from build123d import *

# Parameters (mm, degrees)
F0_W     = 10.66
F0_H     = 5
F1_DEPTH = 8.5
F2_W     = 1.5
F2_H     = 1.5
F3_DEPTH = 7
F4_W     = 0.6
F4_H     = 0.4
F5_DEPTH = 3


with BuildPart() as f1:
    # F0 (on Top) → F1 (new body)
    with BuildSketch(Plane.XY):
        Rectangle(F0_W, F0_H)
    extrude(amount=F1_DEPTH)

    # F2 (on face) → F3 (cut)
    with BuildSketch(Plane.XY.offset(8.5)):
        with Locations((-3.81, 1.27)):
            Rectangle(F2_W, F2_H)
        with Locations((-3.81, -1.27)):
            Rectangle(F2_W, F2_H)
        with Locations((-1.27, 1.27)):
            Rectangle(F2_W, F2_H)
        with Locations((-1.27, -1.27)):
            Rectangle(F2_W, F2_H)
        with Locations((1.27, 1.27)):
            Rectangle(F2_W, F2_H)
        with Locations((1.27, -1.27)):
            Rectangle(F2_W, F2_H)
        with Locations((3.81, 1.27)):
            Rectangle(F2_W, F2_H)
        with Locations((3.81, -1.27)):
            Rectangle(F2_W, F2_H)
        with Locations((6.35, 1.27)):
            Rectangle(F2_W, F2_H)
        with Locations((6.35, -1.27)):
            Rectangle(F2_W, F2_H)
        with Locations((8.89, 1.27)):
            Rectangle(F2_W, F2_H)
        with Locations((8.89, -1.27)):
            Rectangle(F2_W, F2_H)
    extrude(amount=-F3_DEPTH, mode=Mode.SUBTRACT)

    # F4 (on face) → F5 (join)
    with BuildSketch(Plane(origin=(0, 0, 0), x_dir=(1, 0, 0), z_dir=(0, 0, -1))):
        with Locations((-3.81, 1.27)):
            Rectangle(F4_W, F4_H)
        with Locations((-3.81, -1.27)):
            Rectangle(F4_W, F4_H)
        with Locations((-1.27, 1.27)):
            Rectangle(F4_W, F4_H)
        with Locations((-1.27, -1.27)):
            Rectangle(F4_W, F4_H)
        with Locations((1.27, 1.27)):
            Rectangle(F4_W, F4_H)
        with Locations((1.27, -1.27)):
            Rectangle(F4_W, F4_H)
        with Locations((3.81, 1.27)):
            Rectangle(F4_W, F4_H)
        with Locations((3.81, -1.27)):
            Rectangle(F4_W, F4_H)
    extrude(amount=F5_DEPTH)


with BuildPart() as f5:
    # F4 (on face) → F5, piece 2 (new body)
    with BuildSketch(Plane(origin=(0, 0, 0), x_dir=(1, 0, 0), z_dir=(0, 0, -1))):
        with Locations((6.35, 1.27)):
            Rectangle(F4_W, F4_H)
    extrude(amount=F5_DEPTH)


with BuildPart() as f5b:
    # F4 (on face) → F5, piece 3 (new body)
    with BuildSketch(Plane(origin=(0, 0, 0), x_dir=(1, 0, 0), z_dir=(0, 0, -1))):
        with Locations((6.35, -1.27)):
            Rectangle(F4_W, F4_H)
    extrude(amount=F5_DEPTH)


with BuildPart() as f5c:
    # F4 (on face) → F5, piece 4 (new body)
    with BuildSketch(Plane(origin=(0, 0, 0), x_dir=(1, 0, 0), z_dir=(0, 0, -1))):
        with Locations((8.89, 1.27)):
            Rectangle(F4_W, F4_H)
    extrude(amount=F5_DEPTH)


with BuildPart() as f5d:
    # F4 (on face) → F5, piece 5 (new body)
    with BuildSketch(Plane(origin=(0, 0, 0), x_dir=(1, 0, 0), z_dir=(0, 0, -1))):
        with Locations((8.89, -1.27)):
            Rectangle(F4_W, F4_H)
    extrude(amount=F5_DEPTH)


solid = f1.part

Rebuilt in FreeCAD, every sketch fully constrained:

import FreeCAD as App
import Part
import Sketcher
from FreeCAD import Vector
Q = App.Units.Quantity


def add_polygon(sketch, points):
    """Adds a closed chain of lines whose ends are joined by coincident constraints."""
    first, n = sketch.GeometryCount, len(points)
    for a, b in zip(points, points[1:] + points[:1]):
        sketch.addGeometry(Part.LineSegment(App.Vector(*a, 0), App.Vector(*b, 0)), False)
    for i in range(n):
        sketch.addConstraint(Sketcher.Constraint("Coincident", first + i, 2, first + (i + 1) % n, 1))

doc = App.newDocument("Part")
body = doc.addObject("PartDesign::Body", "Body")

# Sketch on XY plane
sketch1 = body.newObject("Sketcher::SketchObject", "Sketch")
sketch1.AttachmentSupport = (doc.getObject("XY_Plane"), [""])
sketch1.MapMode = "FlatFace"
add_polygon(sketch1, [(-5, 2), (-5, -2), (5, -2), (5, 2)])  # lines 0-3
sketch1.addConstraint([
    Sketcher.Constraint("Vertical", 0),
    Sketcher.Constraint("Horizontal", 1),
    Sketcher.Constraint("Vertical", 2),
    Sketcher.Constraint("Horizontal", 3),
    Sketcher.Constraint("Symmetric", 0, 2, 2, 2, -1, 1),
    Sketcher.Constraint("DistanceY", 0, 2, 0, 1, Q("5 mm")),
    Sketcher.Constraint("DistanceX", 1, 1, 1, 2, Q("10.66 mm")),
])
pad1 = body.newObject("PartDesign::Pad", "Pad")
pad1.Profile = sketch1
pad1.Length = 8.5

# Sketch on XY plane
sketch2 = body.newObject("Sketcher::SketchObject", "Sketch001")
sketch2.AttachmentSupport = (doc.getObject("XY_Plane"), [""])
sketch2.MapMode = "FlatFace"
sketch2.AttachmentOffset = App.Placement(Vector(0, 0, 8.5), App.Rotation())
add_polygon(sketch2, [(-4.6, 2), (-4.6, 0.5), (-3.1, 0.5), (-3.1, 2)])  # lines 0-3
add_polygon(sketch2, [(-4.6, -0.5), (-4.6, -2), (-3.1, -2), (-3.1, -0.5)])  # lines 4-7
add_polygon(sketch2, [(-2, 2), (-2, 0.5), (-0.5, 0.5), (-0.5, 2)])  # lines 8-11
add_polygon(sketch2, [(-2, -0.5), (-2, -2), (-0.5, -2), (-0.5, -0.5)])  # lines 12-15
add_polygon(sketch2, [(0.5, 2), (0.5, 0.5), (2, 0.5), (2, 2)])  # lines 16-19
add_polygon(sketch2, [(0.5, -0.5), (0.5, -2), (2, -2), (2, -0.5)])  # lines 20-23
add_polygon(sketch2, [(3.1, 2), (3.1, 0.5), (4.6, 0.5), (4.6, 2)])  # lines 24-27
add_polygon(sketch2, [(3.1, -0.5), (3.1, -2), (4.6, -2), (4.6, -0.5)])  # lines 28-31
add_polygon(sketch2, [(5.6, 2), (5.6, 0.5), (7.1, 0.5), (7.1, 2)])  # lines 32-35
add_polygon(sketch2, [(5.6, -0.5), (5.6, -2), (7.1, -2), (7.1, -0.5)])  # lines 36-39
add_polygon(sketch2, [(8.1, 2), (8.1, 0.5), (9.6, 0.5), (9.6, 2)])  # lines 40-43
add_polygon(sketch2, [(8.1, -0.5), (8.1, -2), (9.6, -2), (9.6, -0.5)])  # lines 44-47
sketch2.addConstraint([
    Sketcher.Constraint("Vertical", 0),
    Sketcher.Constraint("Horizontal", 1),
    Sketcher.Constraint("Vertical", 2),
    Sketcher.Constraint("Horizontal", 3),
    Sketcher.Constraint("Vertical", 4),
    Sketcher.Constraint("Horizontal", 5),
    Sketcher.Constraint("Vertical", 6),
    Sketcher.Constraint("Horizontal", 7),
    Sketcher.Constraint("Vertical", 8),
    Sketcher.Constraint("Horizontal", 9),
    Sketcher.Constraint("Vertical", 10),
    Sketcher.Constraint("Horizontal", 11),
    Sketcher.Constraint("Vertical", 12),
    Sketcher.Constraint("Horizontal", 13),
    Sketcher.Constraint("Vertical", 14),
    Sketcher.Constraint("Horizontal", 15),
    Sketcher.Constraint("Vertical", 16),
    Sketcher.Constraint("Horizontal", 17),
    Sketcher.Constraint("Vertical", 18),
    Sketcher.Constraint("Horizontal", 19),
    Sketcher.Constraint("Vertical", 20),
    Sketcher.Constraint("Horizontal", 21),
    Sketcher.Constraint("Vertical", 22),
    Sketcher.Constraint("Horizontal", 23),
    Sketcher.Constraint("Vertical", 24),
    Sketcher.Constraint("Horizontal", 25),
    Sketcher.Constraint("Vertical", 26),
    Sketcher.Constraint("Horizontal", 27),
    Sketcher.Constraint("Vertical", 28),
    Sketcher.Constraint("Horizontal", 29),
    Sketcher.Constraint("Vertical", 30),
    Sketcher.Constraint("Horizontal", 31),
    Sketcher.Constraint("Vertical", 32),
    Sketcher.Constraint("Horizontal", 33),
    Sketcher.Constraint("Vertical", 34),
    Sketcher.Constraint("Horizontal", 35),
    Sketcher.Constraint("Vertical", 36),
    Sketcher.Constraint("Horizontal", 37),
    Sketcher.Constraint("Vertical", 38),
    Sketcher.Constraint("Horizontal", 39),
    Sketcher.Constraint("Vertical", 40),
    Sketcher.Constraint("Horizontal", 41),
    Sketcher.Constraint("Vertical", 42),
    Sketcher.Constraint("Horizontal", 43),
    Sketcher.Constraint("Vertical", 44),
    Sketcher.Constraint("Horizontal", 45),
    Sketcher.Constraint("Vertical", 46),
    Sketcher.Constraint("Horizontal", 47),
    Sketcher.Constraint("Symmetric", 14, 2, 16, 2, -1, 1),
    Sketcher.Constraint("Symmetric", 12, 2, 18, 2, -1, 1),
    Sketcher.Constraint("Symmetric", 10, 2, 20, 2, -1, 1),
    Sketcher.Constraint("Symmetric", 8, 2, 22, 2, -1, 1),
    Sketcher.Constraint("Symmetric", 6, 2, 24, 2, -1, 1),
    Sketcher.Constraint("Symmetric", 4, 2, 26, 2, -1, 1),
    Sketcher.Constraint("Symmetric", 2, 2, 28, 2, -1, 1),
    Sketcher.Constraint("Symmetric", 0, 2, 30, 2, -1, 1),
    Sketcher.Constraint("Symmetric", 9, 2, 16, 2, -2),
    Sketcher.Constraint("Symmetric", 11, 2, 18, 2, -2),
    Sketcher.Constraint("Symmetric", 1, 2, 24, 2, -2),
    Sketcher.Constraint("Symmetric", 3, 2, 26, 2, -2),
    Sketcher.Constraint("Symmetric", 35, 2, 36, 2, -1),
    Sketcher.Constraint("Symmetric", 33, 2, 38, 2, -1),
    Sketcher.Constraint("Symmetric", 43, 2, 44, 2, -1),
    Sketcher.Constraint("Symmetric", 41, 2, 46, 2, -1),
    Sketcher.Constraint("Horizontal", 1, 2, 8, 2),
    Sketcher.Constraint("Horizontal", 3, 2, 10, 2),
    Sketcher.Constraint("Horizontal", 25, 2, 32, 2),
    Sketcher.Constraint("Horizontal", 27, 2, 34, 2),
    Sketcher.Constraint("Horizontal", 33, 2, 40, 2),
    Sketcher.Constraint("Horizontal", 35, 2, 42, 2),
    Sketcher.Constraint("Equal", 7, 9),
    Sketcher.Constraint("Equal", 31, 33),
    Sketcher.Constraint("Equal", 39, 41),
    Sketcher.Constraint("Equal", 47, 0),
    Sketcher.Constraint("DistanceX", 1, 1, 1, 2, Q("1.5 mm")),
    Sketcher.Constraint("DistanceX", -1, 1, 32, 2, Q("5.6 mm")),
    Sketcher.Constraint("DistanceX", 0, 2, -1, 1, Q("4.56 mm")),
    Sketcher.Constraint("DistanceY", -1, 1, 0, 2, Q("0.52 mm")),
    Sketcher.Constraint("DistanceX", 8, 2, -1, 1, Q("2.02 mm")),
    Sketcher.Constraint("DistanceX", -1, 1, 40, 2, Q("8.14 mm")),
])
pocket1 = body.newObject("PartDesign::Pocket", "Pocket")
pocket1.Profile = sketch2
pocket1.Length = 7

# Sketch on XY plane
sketch3 = body.newObject("Sketcher::SketchObject", "Sketch002")
sketch3.AttachmentSupport = (doc.getObject("XY_Plane"), [""])
sketch3.MapMode = "FlatFace"
add_polygon(sketch3, [(-4.11, -1.47), (-4.11, -1.07), (-3.51, -1.07), (-3.51, -1.47)])  # lines 0-3
add_polygon(sketch3, [(-4.11, 1.07), (-4.11, 1.47), (-3.51, 1.47), (-3.51, 1.07)])  # lines 4-7
add_polygon(sketch3, [(-1.57, -1.47), (-1.57, -1.07), (-0.97, -1.07), (-0.97, -1.47)])  # lines 8-11
add_polygon(sketch3, [(-1.57, 1.07), (-1.57, 1.47), (-0.97, 1.47), (-0.97, 1.07)])  # lines 12-15
add_polygon(sketch3, [(0.97, -1.47), (0.97, -1.07), (1.57, -1.07), (1.57, -1.47)])  # lines 16-19
add_polygon(sketch3, [(0.97, 1.07), (0.97, 1.47), (1.57, 1.47), (1.57, 1.07)])  # lines 20-23
add_polygon(sketch3, [(3.51, -1.47), (3.51, -1.07), (4.11, -1.07), (4.11, -1.47)])  # lines 24-27
add_polygon(sketch3, [(3.51, 1.07), (3.51, 1.47), (4.11, 1.47), (4.11, 1.07)])  # lines 28-31
sketch3.addConstraint([
    Sketcher.Constraint("Vertical", 0),
    Sketcher.Constraint("Horizontal", 1),
    Sketcher.Constraint("Vertical", 2),
    Sketcher.Constraint("Horizontal", 3),
    Sketcher.Constraint("Vertical", 4),
    Sketcher.Constraint("Horizontal", 5),
    Sketcher.Constraint("Vertical", 6),
    Sketcher.Constraint("Horizontal", 7),
    Sketcher.Constraint("Vertical", 8),
    Sketcher.Constraint("Horizontal", 9),
    Sketcher.Constraint("Vertical", 10),
    Sketcher.Constraint("Horizontal", 11),
    Sketcher.Constraint("Vertical", 12),
    Sketcher.Constraint("Horizontal", 13),
    Sketcher.Constraint("Vertical", 14),
    Sketcher.Constraint("Horizontal", 15),
    Sketcher.Constraint("Vertical", 16),
    Sketcher.Constraint("Horizontal", 17),
    Sketcher.Constraint("Vertical", 18),
    Sketcher.Constraint("Horizontal", 19),
    Sketcher.Constraint("Vertical", 20),
    Sketcher.Constraint("Horizontal", 21),
    Sketcher.Constraint("Vertical", 22),
    Sketcher.Constraint("Horizontal", 23),
    Sketcher.Constraint("Vertical", 24),
    Sketcher.Constraint("Horizontal", 25),
    Sketcher.Constraint("Vertical", 26),
    Sketcher.Constraint("Horizontal", 27),
    Sketcher.Constraint("Vertical", 28),
    Sketcher.Constraint("Horizontal", 29),
    Sketcher.Constraint("Vertical", 30),
    Sketcher.Constraint("Horizontal", 31),
    Sketcher.Constraint("Symmetric", 14, 2, 16, 2, -1, 1),
    Sketcher.Constraint("Symmetric", 12, 2, 18, 2, -1, 1),
    Sketcher.Constraint("Symmetric", 10, 2, 20, 2, -1, 1),
    Sketcher.Constraint("Symmetric", 8, 2, 22, 2, -1, 1),
    Sketcher.Constraint("Symmetric", 6, 2, 24, 2, -1, 1),
    Sketcher.Constraint("Symmetric", 4, 2, 26, 2, -1, 1),
    Sketcher.Constraint("Symmetric", 2, 2, 28, 2, -1, 1),
    Sketcher.Constraint("Symmetric", 0, 2, 30, 2, -1, 1),
    Sketcher.Constraint("Symmetric", 9, 2, 16, 2, -2),
    Sketcher.Constraint("Symmetric", 11, 2, 18, 2, -2),
    Sketcher.Constraint("Symmetric", 1, 2, 24, 2, -2),
    Sketcher.Constraint("Symmetric", 3, 2, 26, 2, -2),
    Sketcher.Constraint("Horizontal", 1, 2, 8, 2),
    Sketcher.Constraint("Horizontal", 3, 2, 10, 2),
    Sketcher.Constraint("Equal", 7, 9),
    Sketcher.Constraint("DistanceX", 1, 1, 1, 2, Q("0.6 mm")),
    Sketcher.Constraint("DistanceY", 0, 1, 0, 2, Q("0.4 mm")),
    Sketcher.Constraint("DistanceX", 0, 2, -1, 1, Q("4.11 mm")),
    Sketcher.Constraint("DistanceY", 0, 2, -1, 1, Q("1.07 mm")),
    Sketcher.Constraint("DistanceX", 8, 2, -1, 1, Q("1.57 mm")),
])
pad2 = body.newObject("PartDesign::Pad", "Pad001")
pad2.Profile = sketch3
pad2.Length = 3
pad2.Reversed = True
body2 = doc.addObject("PartDesign::Body", "Body001")

# Sketch on XY plane
sketch4 = body2.newObject("Sketcher::SketchObject", "Sketch003")
sketch4.AttachmentSupport = (doc.getObject("XY_Plane001"), [""])
sketch4.MapMode = "FlatFace"
add_polygon(sketch4, [(6.05, -1.47), (6.05, -1.07), (6.65, -1.07), (6.65, -1.47)])  # lines 0-3
sketch4.addConstraint([
    Sketcher.Constraint("Vertical", 0),
    Sketcher.Constraint("Horizontal", 1),
    Sketcher.Constraint("Vertical", 2),
    Sketcher.Constraint("Horizontal", 3),
    Sketcher.Constraint("DistanceX", 1, 1, 1, 2, Q("0.6 mm")),
    Sketcher.Constraint("DistanceY", 0, 1, 0, 2, Q("0.4 mm")),
    Sketcher.Constraint("DistanceX", -1, 1, 0, 2, Q("6.05 mm")),
    Sketcher.Constraint("DistanceY", 0, 2, -1, 1, Q("1.07 mm")),
])
pad3 = body2.newObject("PartDesign::Pad", "Pad002")
pad3.Profile = sketch4
pad3.Length = 3
pad3.Reversed = True
body3 = doc.addObject("PartDesign::Body", "Body002")

# Sketch on XY plane
sketch5 = body3.newObject("Sketcher::SketchObject", "Sketch004")
sketch5.AttachmentSupport = (doc.getObject("XY_Plane002"), [""])
sketch5.MapMode = "FlatFace"
add_polygon(sketch5, [(6.05, 1.07), (6.05, 1.47), (6.65, 1.47), (6.65, 1.07)])  # lines 0-3
sketch5.addConstraint([
    Sketcher.Constraint("Vertical", 0),
    Sketcher.Constraint("Horizontal", 1),
    Sketcher.Constraint("Vertical", 2),
    Sketcher.Constraint("Horizontal", 3),
    Sketcher.Constraint("DistanceX", 1, 1, 1, 2, Q("0.6 mm")),
    Sketcher.Constraint("DistanceY", 0, 1, 0, 2, Q("0.4 mm")),
    Sketcher.Constraint("DistanceX", -1, 1, 0, 2, Q("6.05 mm")),
    Sketcher.Constraint("DistanceY", -1, 1, 0, 2, Q("1.47 mm")),
])
pad4 = body3.newObject("PartDesign::Pad", "Pad003")
pad4.Profile = sketch5
pad4.Length = 3
pad4.Reversed = True
body4 = doc.addObject("PartDesign::Body", "Body003")

# Sketch on XY plane
sketch6 = body4.newObject("Sketcher::SketchObject", "Sketch005")
sketch6.AttachmentSupport = (doc.getObject("XY_Plane003"), [""])
sketch6.MapMode = "FlatFace"
add_polygon(sketch6, [(8.59, -1.47), (8.59, -1.07), (9.19, -1.07), (9.19, -1.47)])  # lines 0-3
sketch6.addConstraint([
    Sketcher.Constraint("Vertical", 0),
    Sketcher.Constraint("Horizontal", 1),
    Sketcher.Constraint("Vertical", 2),
    Sketcher.Constraint("Horizontal", 3),
    Sketcher.Constraint("DistanceX", 1, 1, 1, 2, Q("0.6 mm")),
    Sketcher.Constraint("DistanceY", 0, 1, 0, 2, Q("0.4 mm")),
    Sketcher.Constraint("DistanceX", -1, 1, 0, 2, Q("8.59 mm")),
    Sketcher.Constraint("DistanceY", 0, 2, -1, 1, Q("1.07 mm")),
])
pad5 = body4.newObject("PartDesign::Pad", "Pad004")
pad5.Profile = sketch6
pad5.Length = 3
pad5.Reversed = True
body5 = doc.addObject("PartDesign::Body", "Body004")

# Sketch on XY plane
sketch7 = body5.newObject("Sketcher::SketchObject", "Sketch006")
sketch7.AttachmentSupport = (doc.getObject("XY_Plane004"), [""])
sketch7.MapMode = "FlatFace"
add_polygon(sketch7, [(8.59, 1.07), (8.59, 1.47), (9.19, 1.47), (9.19, 1.07)])  # lines 0-3
sketch7.addConstraint([
    Sketcher.Constraint("Vertical", 0),
    Sketcher.Constraint("Horizontal", 1),
    Sketcher.Constraint("Vertical", 2),
    Sketcher.Constraint("Horizontal", 3),
    Sketcher.Constraint("DistanceX", 1, 1, 1, 2, Q("0.6 mm")),
    Sketcher.Constraint("DistanceY", 0, 1, 0, 2, Q("0.4 mm")),
    Sketcher.Constraint("DistanceX", -1, 1, 0, 2, Q("8.59 mm")),
    Sketcher.Constraint("DistanceY", -1, 1, 0, 2, Q("1.47 mm")),
])
pad6 = body5.newObject("PartDesign::Pad", "Pad005")
pad6.Profile = sketch7
pad6.Length = 3
pad6.Reversed = True
body2.Visibility = False
body3.Visibility = False
body4.Visibility = False
body5.Visibility = False

doc.recompute()
